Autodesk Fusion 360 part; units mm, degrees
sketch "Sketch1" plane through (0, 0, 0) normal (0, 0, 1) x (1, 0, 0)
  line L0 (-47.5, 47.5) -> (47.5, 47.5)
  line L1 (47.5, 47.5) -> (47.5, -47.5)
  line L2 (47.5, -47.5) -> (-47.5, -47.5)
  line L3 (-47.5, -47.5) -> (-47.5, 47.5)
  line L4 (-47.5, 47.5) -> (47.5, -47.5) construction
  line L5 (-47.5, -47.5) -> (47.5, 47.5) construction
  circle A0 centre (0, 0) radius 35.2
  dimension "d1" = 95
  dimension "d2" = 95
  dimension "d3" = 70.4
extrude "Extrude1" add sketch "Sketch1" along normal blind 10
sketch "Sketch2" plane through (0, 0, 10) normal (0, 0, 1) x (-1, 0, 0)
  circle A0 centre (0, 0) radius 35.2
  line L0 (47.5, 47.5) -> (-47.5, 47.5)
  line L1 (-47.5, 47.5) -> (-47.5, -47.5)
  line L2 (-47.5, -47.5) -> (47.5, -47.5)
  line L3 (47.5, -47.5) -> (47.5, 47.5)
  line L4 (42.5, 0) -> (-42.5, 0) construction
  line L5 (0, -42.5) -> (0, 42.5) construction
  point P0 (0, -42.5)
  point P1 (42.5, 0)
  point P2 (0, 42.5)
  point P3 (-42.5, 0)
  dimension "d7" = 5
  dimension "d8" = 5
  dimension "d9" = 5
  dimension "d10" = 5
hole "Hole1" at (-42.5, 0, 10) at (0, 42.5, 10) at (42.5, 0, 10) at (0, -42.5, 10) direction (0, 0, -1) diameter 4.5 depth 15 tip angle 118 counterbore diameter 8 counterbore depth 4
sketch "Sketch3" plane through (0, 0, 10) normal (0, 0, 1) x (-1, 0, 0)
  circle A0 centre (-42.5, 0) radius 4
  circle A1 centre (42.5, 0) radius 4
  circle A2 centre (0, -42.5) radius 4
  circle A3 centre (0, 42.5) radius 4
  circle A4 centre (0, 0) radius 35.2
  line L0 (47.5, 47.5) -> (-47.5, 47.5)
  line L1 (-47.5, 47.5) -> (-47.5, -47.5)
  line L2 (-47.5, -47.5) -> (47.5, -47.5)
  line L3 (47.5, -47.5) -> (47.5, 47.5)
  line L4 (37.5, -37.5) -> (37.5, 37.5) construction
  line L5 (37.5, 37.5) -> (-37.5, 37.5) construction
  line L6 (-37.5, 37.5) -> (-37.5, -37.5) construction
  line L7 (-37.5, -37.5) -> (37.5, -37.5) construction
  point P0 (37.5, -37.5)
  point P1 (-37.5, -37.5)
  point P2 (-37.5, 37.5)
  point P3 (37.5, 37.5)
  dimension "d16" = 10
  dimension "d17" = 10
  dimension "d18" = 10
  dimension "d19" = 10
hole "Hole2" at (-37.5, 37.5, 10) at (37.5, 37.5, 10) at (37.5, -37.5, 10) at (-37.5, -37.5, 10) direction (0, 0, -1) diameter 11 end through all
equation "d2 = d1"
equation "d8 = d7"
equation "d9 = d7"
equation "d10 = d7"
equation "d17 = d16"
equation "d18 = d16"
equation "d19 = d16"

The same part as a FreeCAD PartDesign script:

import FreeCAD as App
import Part
import Sketcher
Q = App.Units.Quantity


def add_polygon(sketch, points):
    """Adds a closed chain of lines whose ends are joined by coincident constraints."""
    first, n = sketch.GeometryCount, len(points)
    for a, b in zip(points, points[1:] + points[:1]):
        sketch.addGeometry(Part.LineSegment(App.Vector(*a, 0), App.Vector(*b, 0)), False)
    for i in range(n):
        sketch.addConstraint(Sketcher.Constraint("Coincident", first + i, 2, first + (i + 1) % n, 1))

doc = App.newDocument("Part")
params = doc.addObject("Spreadsheet::Sheet", "Params")
for row, (alias, value) in enumerate([
    ("sketch1_diameter", "70.4 mm"),
    ("sketch1_width", "95 mm"),
    ("pad1_length", "10 mm"),
    ("sketch2_diameter", "4.5 mm"),
    ("hole_diameter", "4.5 mm"),
    ("hole_depth", "15 mm"),
    ("hole_cbore_diameter", "8 mm"),
    ("hole_cbore_depth", "4 mm"),
    ("sketch3_diameter", "11 mm"),
    ("hole2_diameter", "11 mm"),
], start=1):
    params.set(f"A{row}", alias)
    params.set(f"B{row}", "=" + value)
    params.setAlias(f"B{row}", alias)

body = doc.addObject("PartDesign::Body", "Body")

# Sketch on XY plane
sketch1 = body.newObject("Sketcher::SketchObject", "Sketch")
sketch1.AttachmentSupport = (doc.getObject("XY_Plane"), [""])
sketch1.MapMode = "FlatFace"
add_polygon(sketch1, [(47.5, 47.5), (-47.5, 47.5), (-47.5, -47.5), (47.5, -47.5)])  # lines 0-3
sketch1.addGeometry(Part.Circle(App.Vector(0, 0, 0), App.Vector(0, 0, 1), 35.2), False)  # 4
sketch1.addConstraint([
    Sketcher.Constraint("Horizontal", 0),
    Sketcher.Constraint("Vertical", 1),
    Sketcher.Constraint("Horizontal", 2),
    Sketcher.Constraint("Vertical", 3),
    Sketcher.Constraint("Coincident", 4, 3, -1, 1),
    Sketcher.Constraint("Symmetric", 0, 2, 2, 2, -1, 1),
    Sketcher.Constraint("Equal", 2, 1),
    Sketcher.Constraint("Diameter", 4, Q("70.4 mm")),
    Sketcher.Constraint("DistanceX", 0, 2, 0, 1, Q("95 mm")),
])
sketch1.setExpression("Constraints[11]", "Params.sketch1_diameter")
sketch1.setExpression("Constraints[12]", "Params.sketch1_width")
pad1 = body.newObject("PartDesign::Pad", "Pad")
pad1.Profile = sketch1
pad1.setExpression("Length", "Params.pad1_length")

# Sketch on XY plane
sketch2 = body.newObject("Sketcher::SketchObject", "Sketch001")
sketch2.AttachmentSupport = (doc.getObject("XY_Plane"), [""])
sketch2.MapMode = "FlatFace"
sketch2.AttachmentOffset = App.Placement(App.Vector(0, 0, 10), App.Rotation())
sketch2.addGeometry([
    Part.Circle(App.Vector(-42.5, 0, 0), App.Vector(0, 0, 1), 2.25),
    Part.Circle(App.Vector(0, 42.5, 0), App.Vector(0, 0, 1), 2.25),
    Part.Circle(App.Vector(42.5, 0, 0), App.Vector(0, 0, 1), 2.25),
    Part.Circle(App.Vector(0, -42.5, 0), App.Vector(0, 0, 1), 2.25),
], False)
sketch2.addConstraint([
    Sketcher.Constraint("Equal", 0, 1),
    Sketcher.Constraint("Equal", 1, 2),
    Sketcher.Constraint("Equal", 2, 3),
    Sketcher.Constraint("Symmetric", 0, 3, 2, 3, -1, 1),
    Sketcher.Constraint("Symmetric", 1, 3, 3, 3, -1, 1),
    Sketcher.Constraint("PointOnObject", 0, 3, -1),
    Sketcher.Constraint("PointOnObject", 1, 3, -2),
    Sketcher.Constraint("Diameter", 0, Q("4.5 mm")),
    Sketcher.Constraint("DistanceX", 0, 3, 2, 3, Q("85 mm")),
    Sketcher.Constraint("DistanceY", 3, 3, 1, 3, Q("85 mm")),
])
sketch2.setExpression("Constraints[7]", "Params.sketch2_diameter")
doc.recompute()
hole = body.newObject("PartDesign::Hole", "Hole")
hole.Profile = sketch2
hole.ThreadType = "None"
hole.setExpression("Diameter", "Params.hole_diameter")
hole.DepthType = "Dimension"
hole.setExpression("Depth", "Params.hole_depth")
hole.DrillPoint = "Angled"
hole.DrillPointAngle = 118
hole.HoleCutType = "Counterbore"
hole.setExpression("HoleCutDiameter", "Params.hole_cbore_diameter")
hole.setExpression("HoleCutDepth", "Params.hole_cbore_depth")

# Sketch on XY plane
sketch3 = body.newObject("Sketcher::SketchObject", "Sketch002")
sketch3.AttachmentSupport = (doc.getObject("XY_Plane"), [""])
sketch3.MapMode = "FlatFace"
sketch3.AttachmentOffset = App.Placement(App.Vector(0, 0, 10), App.Rotation())
sketch3.addGeometry([
    Part.Circle(App.Vector(-37.5, 37.5, 0), App.Vector(0, 0, 1), 5.5),
    Part.Circle(App.Vector(37.5, 37.5, 0), App.Vector(0, 0, 1), 5.5),
    Part.Circle(App.Vector(37.5, -37.5, 0), App.Vector(0, 0, 1), 5.5),
    Part.Circle(App.Vector(-37.5, -37.5, 0), App.Vector(0, 0, 1), 5.5),
], False)
sketch3.addConstraint([
    Sketcher.Constraint("Equal", 0, 1),
    Sketcher.Constraint("Equal", 1, 2),
    Sketcher.Constraint("Equal", 2, 3),
    Sketcher.Constraint("Symmetric", 0, 3, 2, 3, -1, 1),
    Sketcher.Constraint("Symmetric", 1, 3, 3, 3, -1, 1),
    Sketcher.Constraint("Symmetric", 0, 3, 1, 3, -2),
    Sketcher.Constraint("Diameter", 0, Q("11 mm")),
    Sketcher.Constraint("DistanceX", 0, 3, 1, 3, Q("75 mm")),
    Sketcher.Constraint("DistanceY", 2, 3, 1, 3, Q("75 mm")),
])
sketch3.setExpression("Constraints[6]", "Params.sketch3_diameter")
doc.recompute()
hole2 = body.newObject("PartDesign::Hole", "Hole001")
hole2.Profile = sketch3
hole2.ThreadType = "None"
hole2.setExpression("Diameter", "Params.hole2_diameter")
hole2.DepthType = "ThroughAll"

doc.recompute()
